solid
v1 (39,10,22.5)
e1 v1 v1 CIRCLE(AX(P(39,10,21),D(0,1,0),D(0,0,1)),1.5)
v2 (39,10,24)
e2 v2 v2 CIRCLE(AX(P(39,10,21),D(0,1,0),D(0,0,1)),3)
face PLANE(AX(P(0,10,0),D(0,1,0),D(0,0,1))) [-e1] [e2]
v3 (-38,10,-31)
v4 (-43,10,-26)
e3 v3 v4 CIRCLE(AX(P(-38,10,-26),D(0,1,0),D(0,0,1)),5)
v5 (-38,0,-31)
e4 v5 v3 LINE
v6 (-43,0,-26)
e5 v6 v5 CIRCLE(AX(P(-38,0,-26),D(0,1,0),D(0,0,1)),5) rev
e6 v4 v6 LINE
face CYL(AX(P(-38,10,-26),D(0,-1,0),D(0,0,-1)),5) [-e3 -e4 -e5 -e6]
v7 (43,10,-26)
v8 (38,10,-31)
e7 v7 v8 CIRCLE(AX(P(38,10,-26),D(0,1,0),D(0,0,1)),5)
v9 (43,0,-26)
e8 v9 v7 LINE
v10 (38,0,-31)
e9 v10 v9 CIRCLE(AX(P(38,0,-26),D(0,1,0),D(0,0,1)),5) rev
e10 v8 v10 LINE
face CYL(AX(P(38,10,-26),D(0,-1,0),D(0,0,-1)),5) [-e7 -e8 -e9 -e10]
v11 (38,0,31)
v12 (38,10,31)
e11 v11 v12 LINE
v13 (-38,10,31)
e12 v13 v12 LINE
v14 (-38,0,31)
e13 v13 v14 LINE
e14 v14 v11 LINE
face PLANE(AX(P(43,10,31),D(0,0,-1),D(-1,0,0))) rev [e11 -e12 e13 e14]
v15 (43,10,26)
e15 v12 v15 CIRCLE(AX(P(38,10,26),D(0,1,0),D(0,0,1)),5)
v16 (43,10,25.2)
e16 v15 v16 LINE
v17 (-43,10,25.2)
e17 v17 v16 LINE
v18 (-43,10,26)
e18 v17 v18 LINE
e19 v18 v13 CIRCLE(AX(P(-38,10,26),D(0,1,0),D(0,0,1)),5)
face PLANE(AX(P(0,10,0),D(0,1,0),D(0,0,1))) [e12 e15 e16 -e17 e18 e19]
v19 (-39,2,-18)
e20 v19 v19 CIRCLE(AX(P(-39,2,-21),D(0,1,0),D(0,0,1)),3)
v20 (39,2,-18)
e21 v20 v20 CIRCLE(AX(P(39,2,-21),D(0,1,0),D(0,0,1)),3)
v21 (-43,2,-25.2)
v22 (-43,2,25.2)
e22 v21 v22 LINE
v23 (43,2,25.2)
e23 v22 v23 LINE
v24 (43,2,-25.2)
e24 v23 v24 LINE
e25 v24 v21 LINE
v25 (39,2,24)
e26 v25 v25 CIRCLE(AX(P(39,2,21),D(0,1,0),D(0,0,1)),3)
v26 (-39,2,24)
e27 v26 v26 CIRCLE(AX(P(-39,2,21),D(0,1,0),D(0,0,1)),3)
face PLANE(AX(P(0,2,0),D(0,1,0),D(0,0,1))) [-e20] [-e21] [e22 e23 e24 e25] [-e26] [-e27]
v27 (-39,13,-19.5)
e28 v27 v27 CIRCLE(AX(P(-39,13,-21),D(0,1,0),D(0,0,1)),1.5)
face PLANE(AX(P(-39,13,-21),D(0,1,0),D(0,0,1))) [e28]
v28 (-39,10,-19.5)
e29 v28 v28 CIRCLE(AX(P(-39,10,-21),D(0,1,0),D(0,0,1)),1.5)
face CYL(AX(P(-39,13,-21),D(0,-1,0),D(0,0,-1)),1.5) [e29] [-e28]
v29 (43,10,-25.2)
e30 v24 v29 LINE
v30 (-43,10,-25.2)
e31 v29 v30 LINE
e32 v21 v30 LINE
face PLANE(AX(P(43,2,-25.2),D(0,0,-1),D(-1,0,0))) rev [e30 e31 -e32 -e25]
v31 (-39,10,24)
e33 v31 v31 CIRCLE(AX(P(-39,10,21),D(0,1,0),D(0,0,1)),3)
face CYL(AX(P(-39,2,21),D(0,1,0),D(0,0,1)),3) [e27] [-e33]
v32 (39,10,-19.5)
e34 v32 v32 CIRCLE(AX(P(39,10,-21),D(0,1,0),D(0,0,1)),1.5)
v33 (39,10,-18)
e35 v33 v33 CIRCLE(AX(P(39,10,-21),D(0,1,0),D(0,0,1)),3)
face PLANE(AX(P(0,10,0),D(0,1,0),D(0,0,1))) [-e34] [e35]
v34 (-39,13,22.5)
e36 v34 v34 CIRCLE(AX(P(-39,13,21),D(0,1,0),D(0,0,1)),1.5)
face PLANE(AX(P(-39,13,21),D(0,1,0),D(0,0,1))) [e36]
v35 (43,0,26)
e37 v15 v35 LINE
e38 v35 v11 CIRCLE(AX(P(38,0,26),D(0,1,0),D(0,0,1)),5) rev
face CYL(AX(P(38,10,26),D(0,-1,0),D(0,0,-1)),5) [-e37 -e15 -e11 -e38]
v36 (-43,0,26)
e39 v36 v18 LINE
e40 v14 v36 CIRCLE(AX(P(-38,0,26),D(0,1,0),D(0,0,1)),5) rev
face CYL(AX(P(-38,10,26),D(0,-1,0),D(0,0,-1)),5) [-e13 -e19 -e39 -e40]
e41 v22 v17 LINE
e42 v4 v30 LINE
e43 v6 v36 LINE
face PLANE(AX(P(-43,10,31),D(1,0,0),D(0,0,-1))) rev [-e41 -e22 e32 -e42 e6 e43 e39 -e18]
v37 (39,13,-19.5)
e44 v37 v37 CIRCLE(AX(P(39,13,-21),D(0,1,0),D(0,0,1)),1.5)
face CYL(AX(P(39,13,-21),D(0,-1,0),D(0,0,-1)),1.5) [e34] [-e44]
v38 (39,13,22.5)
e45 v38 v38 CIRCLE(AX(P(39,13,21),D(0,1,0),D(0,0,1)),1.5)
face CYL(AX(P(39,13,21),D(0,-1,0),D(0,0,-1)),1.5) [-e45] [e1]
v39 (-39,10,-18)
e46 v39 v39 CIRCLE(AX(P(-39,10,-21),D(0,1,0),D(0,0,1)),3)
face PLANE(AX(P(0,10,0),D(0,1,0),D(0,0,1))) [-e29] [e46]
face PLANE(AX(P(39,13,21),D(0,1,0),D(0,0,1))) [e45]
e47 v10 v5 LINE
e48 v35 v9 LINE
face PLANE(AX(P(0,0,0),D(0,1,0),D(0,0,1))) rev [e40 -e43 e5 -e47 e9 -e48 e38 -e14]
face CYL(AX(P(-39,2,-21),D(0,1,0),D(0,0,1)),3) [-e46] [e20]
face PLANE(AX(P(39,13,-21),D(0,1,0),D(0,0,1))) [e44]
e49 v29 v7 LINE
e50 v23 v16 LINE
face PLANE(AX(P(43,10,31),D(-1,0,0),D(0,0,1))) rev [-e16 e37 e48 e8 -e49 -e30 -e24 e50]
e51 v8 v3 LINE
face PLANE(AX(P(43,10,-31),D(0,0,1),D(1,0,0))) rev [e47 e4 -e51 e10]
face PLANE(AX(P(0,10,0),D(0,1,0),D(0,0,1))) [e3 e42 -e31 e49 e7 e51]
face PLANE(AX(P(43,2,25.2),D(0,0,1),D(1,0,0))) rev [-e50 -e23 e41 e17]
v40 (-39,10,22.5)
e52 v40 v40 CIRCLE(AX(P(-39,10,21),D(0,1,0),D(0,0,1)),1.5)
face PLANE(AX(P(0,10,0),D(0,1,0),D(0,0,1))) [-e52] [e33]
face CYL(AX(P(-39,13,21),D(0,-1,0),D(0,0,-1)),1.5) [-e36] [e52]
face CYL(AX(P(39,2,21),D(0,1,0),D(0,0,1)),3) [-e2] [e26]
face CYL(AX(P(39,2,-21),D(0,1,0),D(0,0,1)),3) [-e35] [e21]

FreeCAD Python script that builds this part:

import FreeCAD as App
import Part
import Sketcher

V = App.Vector


def edges_at(feature, points):
    """Names of the edges that pass closest to the given points."""
    edges = feature.Shape.Edges
    near = lambda p: min(range(len(edges)), key=lambda i: edges[i].distToShape(Part.Vertex(*p))[0])
    return sorted({f"Edge{near(p) + 1}" for p in points})

doc = App.newDocument("Part")
body = doc.addObject("PartDesign::Body", "Body")

sketch1 = doc.addObject("Sketcher::SketchObject", "Sketch")
body.addObject(sketch1)
sketch1.AttachmentSupport = (doc.XZ_Plane, [""])
sketch1.MapMode = "FlatFace"
sketch1.addGeometry([
    Part.LineSegment(V(-43, -31, 0), V(-43, 31, 0)),
    Part.LineSegment(V(-43, 31, 0), V(43, 31, 0)),
    Part.LineSegment(V(43, 31, 0), V(43, -31, 0)),
    Part.LineSegment(V(43, -31, 0), V(-43, -31, 0)),
], False)
sketch1.addConstraint([
    Sketcher.Constraint("Coincident", 0, 2, 1, 1),
    Sketcher.Constraint("Coincident", 1, 2, 2, 1),
    Sketcher.Constraint("Coincident", 2, 2, 3, 1),
    Sketcher.Constraint("Coincident", 3, 2, 0, 1),
    Sketcher.Constraint("Vertical", 0),
    Sketcher.Constraint("Horizontal", 1),
    Sketcher.Constraint("Vertical", 2),
    Sketcher.Constraint("Horizontal", 3),
    Sketcher.Constraint("Symmetric", 0, 2, 2, 2, -1, 1),
    Sketcher.Constraint("DistanceX", 1, 1, 1, 2, 86.0),
    Sketcher.Constraint("DistanceY", 0, 1, 0, 2, 62.0),
])
pad1 = doc.addObject("PartDesign::Pad", "Pad")
body.addObject(pad1)
pad1.Profile = sketch1
pad1.Length = 10
pad1.Reversed = True

sketch2 = doc.addObject("Sketcher::SketchObject", "Sketch001")
body.addObject(sketch2)
sketch2.AttachmentSupport = (doc.XZ_Plane, [""])
sketch2.MapMode = "FlatFace"
sketch2.AttachmentOffset = App.Placement(V(0, 0, -10), App.Rotation())
sketch2.addGeometry([
    Part.LineSegment(V(-43, -25.2, 0), V(-43, 25.2, 0)),
    Part.LineSegment(V(-43, 25.2, 0), V(43, 25.2, 0)),
    Part.LineSegment(V(43, 25.2, 0), V(43, -25.2, 0)),
    Part.LineSegment(V(43, -25.2, 0), V(-43, -25.2, 0)),
    Part.Circle(V(-39, 21, 0), V(0, 0, 1), 3),
    Part.Circle(V(39, 21, 0), V(0, 0, 1), 3),
    Part.Circle(V(-39, -21, 0), V(0, 0, 1), 3),
    Part.Circle(V(39, -21, 0), V(0, 0, 1), 3),
], False)
sketch2.addConstraint([
    Sketcher.Constraint("Coincident", 0, 2, 1, 1),
    Sketcher.Constraint("Coincident", 1, 2, 2, 1),
    Sketcher.Constraint("Coincident", 2, 2, 3, 1),
    Sketcher.Constraint("Coincident", 3, 2, 0, 1),
    Sketcher.Constraint("Vertical", 0),
    Sketcher.Constraint("Horizontal", 1),
    Sketcher.Constraint("Vertical", 2),
    Sketcher.Constraint("Horizontal", 3),
    Sketcher.Constraint("Equal", 4, 5),
    Sketcher.Constraint("Equal", 5, 6),
    Sketcher.Constraint("Equal", 6, 7),
    Sketcher.Constraint("Symmetric", 5, 3, 6, 3, -1, 1),
    Sketcher.Constraint("Symmetric", 4, 3, 7, 3, -1, 1),
    Sketcher.Constraint("Symmetric", 0, 2, 2, 2, -1, 1),
    Sketcher.Constraint("Symmetric", 4, 3, 5, 3, -2),
    Sketcher.Constraint("Diameter", 4, 6.0),
    Sketcher.Constraint("DistanceX", 1, 1, 1, 2, 86.0),
    Sketcher.Constraint("DistanceY", 0, 1, 0, 2, 50.4),
    Sketcher.Constraint("DistanceX", 4, 3, -1, 1, 39.0),
    Sketcher.Constraint("DistanceY", -1, 1, 4, 3, 21.0),
])
pocket1 = doc.addObject("PartDesign::Pocket", "Pocket")
body.addObject(pocket1)
pocket1.Profile = sketch2
pocket1.Length = 8
pocket1.Reversed = True

sketch3 = doc.addObject("Sketcher::SketchObject", "Sketch002")
body.addObject(sketch3)
sketch3.AttachmentSupport = (doc.XZ_Plane, [""])
sketch3.MapMode = "FlatFace"
sketch3.AttachmentOffset = App.Placement(V(0, 0, -10), App.Rotation())
sketch3.addGeometry([
    Part.Circle(V(-39, -21, 0), V(0, 0, 1), 1.5),
    Part.Circle(V(39, -21, 0), V(0, 0, 1), 1.5),
    Part.Circle(V(39, 21, 0), V(0, 0, 1), 1.5),
    Part.Circle(V(-39, 21, 0), V(0, 0, 1), 1.5),
], False)
sketch3.addConstraint([
    Sketcher.Constraint("Equal", 0, 1),
    Sketcher.Constraint("Equal", 1, 2),
    Sketcher.Constraint("Equal", 2, 3),
    Sketcher.Constraint("Symmetric", 0, 3, 2, 3, -1, 1),
    Sketcher.Constraint("Symmetric", 1, 3, 3, 3, -1, 1),
    Sketcher.Constraint("Symmetric", 0, 3, 1, 3, -2),
    Sketcher.Constraint("Diameter", 0, 3.0),
    Sketcher.Constraint("DistanceX", 0, 3, -1, 1, 39.0),
    Sketcher.Constraint("DistanceY", 0, 3, -1, 1, 21.0),
])
pad2 = doc.addObject("PartDesign::Pad", "Pad001")
body.addObject(pad2)
pad2.Profile = sketch3
pad2.Length = 3
pad2.Reversed = True
doc.recompute()

fillet = doc.addObject("PartDesign::Fillet", "Fillet")
body.addObject(fillet)
fillet.Base = (pad2, edges_at(pad2, [
    (-43, 5, -31),
    (43, 5, -31),
    (43, 5, 31),
    (-43, 5, 31),
]))
fillet.Radius = 5

doc.recompute()
